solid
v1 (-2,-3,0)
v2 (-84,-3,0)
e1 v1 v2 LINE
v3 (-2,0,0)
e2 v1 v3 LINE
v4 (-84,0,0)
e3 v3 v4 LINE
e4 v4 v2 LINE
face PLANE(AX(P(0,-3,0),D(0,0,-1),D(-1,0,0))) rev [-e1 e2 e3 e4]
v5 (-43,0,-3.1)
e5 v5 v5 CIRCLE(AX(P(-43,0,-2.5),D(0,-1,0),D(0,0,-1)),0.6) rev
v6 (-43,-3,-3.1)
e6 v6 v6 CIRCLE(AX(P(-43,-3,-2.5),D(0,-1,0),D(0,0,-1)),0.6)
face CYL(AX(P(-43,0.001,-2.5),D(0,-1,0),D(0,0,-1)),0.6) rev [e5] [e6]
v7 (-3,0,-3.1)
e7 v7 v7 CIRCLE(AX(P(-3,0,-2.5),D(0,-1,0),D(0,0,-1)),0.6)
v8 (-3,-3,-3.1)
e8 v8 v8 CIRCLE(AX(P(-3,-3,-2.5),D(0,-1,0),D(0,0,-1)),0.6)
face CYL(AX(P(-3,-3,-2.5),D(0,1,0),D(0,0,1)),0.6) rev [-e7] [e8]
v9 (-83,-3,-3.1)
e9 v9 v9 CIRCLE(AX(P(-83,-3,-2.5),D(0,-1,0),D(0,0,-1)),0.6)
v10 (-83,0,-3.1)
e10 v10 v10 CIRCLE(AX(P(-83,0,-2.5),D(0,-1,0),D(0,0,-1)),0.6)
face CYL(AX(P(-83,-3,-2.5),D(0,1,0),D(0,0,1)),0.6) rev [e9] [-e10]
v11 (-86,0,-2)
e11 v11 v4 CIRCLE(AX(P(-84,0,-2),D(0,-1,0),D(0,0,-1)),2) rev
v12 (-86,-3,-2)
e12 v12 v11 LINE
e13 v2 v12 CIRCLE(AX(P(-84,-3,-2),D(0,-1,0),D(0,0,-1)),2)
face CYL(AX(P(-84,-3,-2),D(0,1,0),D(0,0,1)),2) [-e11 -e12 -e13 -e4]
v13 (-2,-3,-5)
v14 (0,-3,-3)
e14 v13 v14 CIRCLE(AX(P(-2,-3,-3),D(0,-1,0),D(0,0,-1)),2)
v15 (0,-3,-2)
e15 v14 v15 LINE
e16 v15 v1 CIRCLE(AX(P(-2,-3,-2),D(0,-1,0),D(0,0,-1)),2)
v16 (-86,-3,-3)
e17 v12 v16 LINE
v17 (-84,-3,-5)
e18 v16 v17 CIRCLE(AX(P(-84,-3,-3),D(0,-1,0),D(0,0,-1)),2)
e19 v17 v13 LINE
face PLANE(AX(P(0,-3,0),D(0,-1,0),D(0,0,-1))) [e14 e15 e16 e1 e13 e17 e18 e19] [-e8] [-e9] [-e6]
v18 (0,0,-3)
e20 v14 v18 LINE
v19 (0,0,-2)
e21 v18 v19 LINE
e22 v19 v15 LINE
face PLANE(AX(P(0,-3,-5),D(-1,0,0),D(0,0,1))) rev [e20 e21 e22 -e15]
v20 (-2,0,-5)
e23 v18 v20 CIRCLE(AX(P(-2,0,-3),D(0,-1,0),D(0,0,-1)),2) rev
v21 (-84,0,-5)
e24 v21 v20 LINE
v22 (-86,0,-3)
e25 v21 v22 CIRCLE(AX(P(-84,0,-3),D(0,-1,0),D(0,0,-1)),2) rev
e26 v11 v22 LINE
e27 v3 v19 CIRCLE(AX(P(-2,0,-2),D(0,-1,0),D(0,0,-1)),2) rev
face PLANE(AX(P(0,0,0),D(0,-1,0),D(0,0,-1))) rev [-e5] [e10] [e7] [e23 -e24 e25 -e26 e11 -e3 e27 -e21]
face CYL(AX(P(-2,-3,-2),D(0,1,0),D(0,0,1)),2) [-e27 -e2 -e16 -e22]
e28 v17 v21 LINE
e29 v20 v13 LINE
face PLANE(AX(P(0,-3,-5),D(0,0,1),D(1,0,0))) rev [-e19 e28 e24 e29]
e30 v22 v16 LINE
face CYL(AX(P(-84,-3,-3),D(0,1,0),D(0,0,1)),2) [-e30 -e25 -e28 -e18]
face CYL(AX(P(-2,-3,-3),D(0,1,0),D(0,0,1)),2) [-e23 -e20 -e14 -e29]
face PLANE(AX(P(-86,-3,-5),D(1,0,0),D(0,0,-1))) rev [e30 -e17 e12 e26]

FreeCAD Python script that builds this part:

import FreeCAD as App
import Part
import Sketcher


def edges_at(feature, points):
    """Names of the edges that pass closest to the given points."""
    edges = feature.Shape.Edges
    near = lambda p: min(range(len(edges)), key=lambda i: edges[i].distToShape(Part.Vertex(*p))[0])
    return sorted({f"Edge{near(p) + 1}" for p in points})


def add_polygon(sketch, points):
    """Adds a closed chain of lines whose ends are joined by coincident constraints."""
    first, n = sketch.GeometryCount, len(points)
    for a, b in zip(points, points[1:] + points[:1]):
        sketch.addGeometry(Part.LineSegment(App.Vector(*a, 0), App.Vector(*b, 0)), False)
    for i in range(n):
        sketch.addConstraint(Sketcher.Constraint("Coincident", first + i, 2, first + (i + 1) % n, 1))

doc = App.newDocument("Part")
body = doc.addObject("PartDesign::Body", "Body")

# Sketch on XZ plane
sketch1 = doc.addObject("Sketcher::SketchObject", "Sketch")
body.addObject(sketch1)
sketch1.AttachmentSupport = (doc.XZ_Plane, [""])
sketch1.MapMode = "FlatFace"
add_polygon(sketch1, [(0, -5), (0, 0), (-86, 0), (-86, -5)])  # lines 0-3
sketch1.addGeometry(Part.Circle(App.Vector(-3, -2.5, 0), App.Vector(0, 0, 1), 0.6), False)  # 4
sketch1.addGeometry(Part.Circle(App.Vector(-83, -2.5, 0), App.Vector(0, 0, 1), 0.6), False)  # 5
sketch1.addConstraint(Sketcher.Constraint("Vertical", 0))
sketch1.addConstraint(Sketcher.Constraint("Horizontal", 1))
sketch1.addConstraint(Sketcher.Constraint("Vertical", 2))
sketch1.addConstraint(Sketcher.Constraint("Horizontal", 3))
sketch1.addConstraint(Sketcher.Constraint("Coincident", 0, 2, -1, 1))
sketch1.addConstraint(Sketcher.Constraint("Equal", 4, 5))
sketch1.addConstraint(Sketcher.Constraint("Horizontal", 4, 3, 5, 3))
sketch1.addConstraint(Sketcher.Constraint("Diameter", 4, 1.2))
sketch1.addConstraint(Sketcher.Constraint("DistanceX", 1, 2, 1, 1, 86.0))
sketch1.addConstraint(Sketcher.Constraint("DistanceY", 0, 1, 0, 2, 5.0))
sketch1.addConstraint(Sketcher.Constraint("DistanceX", 4, 3, -1, 1, 3.0))
sketch1.addConstraint(Sketcher.Constraint("DistanceX", 5, 3, -1, 1, 83.0))
sketch1.addConstraint(Sketcher.Constraint("DistanceY", 4, 3, -1, 1, 2.5))
pad1 = doc.addObject("PartDesign::Pad", "Pad")
body.addObject(pad1)
pad1.Profile = sketch1
pad1.Length = 3
doc.recompute()

fillet = doc.addObject("PartDesign::Fillet", "Fillet")
body.addObject(fillet)
fillet.Base = (pad1, edges_at(pad1, [
    (-86, -1.5, 0),
    (0, -1.5, 0),
    (0, -1.5, -5),
    (-86, -1.5, -5),
]))
fillet.Radius = 2

# Sketch on XZ plane
sketch2 = doc.addObject("Sketcher::SketchObject", "Sketch001")
body.addObject(sketch2)
sketch2.AttachmentSupport = (doc.XZ_Plane, [""])
sketch2.MapMode = "FlatFace"
sketch2.AttachmentOffset = App.Placement(App.Vector(0, 0, 3), App.Rotation())
sketch2.addGeometry(Part.Circle(App.Vector(-43, -2.5, 0), App.Vector(0, 0, 1), 0.6), False)
sketch2.addConstraint(Sketcher.Constraint("Diameter", 0, 1.2))
sketch2.addConstraint(Sketcher.Constraint("DistanceX", 0, 3, -1, 1, 43.0))
sketch2.addConstraint(Sketcher.Constraint("DistanceY", 0, 3, -1, 1, 2.5))
pocket1 = doc.addObject("PartDesign::Pocket", "Pocket")
body.addObject(pocket1)
pocket1.Profile = sketch2
pocket1.Type = "UpToFirst"

doc.recompute()
